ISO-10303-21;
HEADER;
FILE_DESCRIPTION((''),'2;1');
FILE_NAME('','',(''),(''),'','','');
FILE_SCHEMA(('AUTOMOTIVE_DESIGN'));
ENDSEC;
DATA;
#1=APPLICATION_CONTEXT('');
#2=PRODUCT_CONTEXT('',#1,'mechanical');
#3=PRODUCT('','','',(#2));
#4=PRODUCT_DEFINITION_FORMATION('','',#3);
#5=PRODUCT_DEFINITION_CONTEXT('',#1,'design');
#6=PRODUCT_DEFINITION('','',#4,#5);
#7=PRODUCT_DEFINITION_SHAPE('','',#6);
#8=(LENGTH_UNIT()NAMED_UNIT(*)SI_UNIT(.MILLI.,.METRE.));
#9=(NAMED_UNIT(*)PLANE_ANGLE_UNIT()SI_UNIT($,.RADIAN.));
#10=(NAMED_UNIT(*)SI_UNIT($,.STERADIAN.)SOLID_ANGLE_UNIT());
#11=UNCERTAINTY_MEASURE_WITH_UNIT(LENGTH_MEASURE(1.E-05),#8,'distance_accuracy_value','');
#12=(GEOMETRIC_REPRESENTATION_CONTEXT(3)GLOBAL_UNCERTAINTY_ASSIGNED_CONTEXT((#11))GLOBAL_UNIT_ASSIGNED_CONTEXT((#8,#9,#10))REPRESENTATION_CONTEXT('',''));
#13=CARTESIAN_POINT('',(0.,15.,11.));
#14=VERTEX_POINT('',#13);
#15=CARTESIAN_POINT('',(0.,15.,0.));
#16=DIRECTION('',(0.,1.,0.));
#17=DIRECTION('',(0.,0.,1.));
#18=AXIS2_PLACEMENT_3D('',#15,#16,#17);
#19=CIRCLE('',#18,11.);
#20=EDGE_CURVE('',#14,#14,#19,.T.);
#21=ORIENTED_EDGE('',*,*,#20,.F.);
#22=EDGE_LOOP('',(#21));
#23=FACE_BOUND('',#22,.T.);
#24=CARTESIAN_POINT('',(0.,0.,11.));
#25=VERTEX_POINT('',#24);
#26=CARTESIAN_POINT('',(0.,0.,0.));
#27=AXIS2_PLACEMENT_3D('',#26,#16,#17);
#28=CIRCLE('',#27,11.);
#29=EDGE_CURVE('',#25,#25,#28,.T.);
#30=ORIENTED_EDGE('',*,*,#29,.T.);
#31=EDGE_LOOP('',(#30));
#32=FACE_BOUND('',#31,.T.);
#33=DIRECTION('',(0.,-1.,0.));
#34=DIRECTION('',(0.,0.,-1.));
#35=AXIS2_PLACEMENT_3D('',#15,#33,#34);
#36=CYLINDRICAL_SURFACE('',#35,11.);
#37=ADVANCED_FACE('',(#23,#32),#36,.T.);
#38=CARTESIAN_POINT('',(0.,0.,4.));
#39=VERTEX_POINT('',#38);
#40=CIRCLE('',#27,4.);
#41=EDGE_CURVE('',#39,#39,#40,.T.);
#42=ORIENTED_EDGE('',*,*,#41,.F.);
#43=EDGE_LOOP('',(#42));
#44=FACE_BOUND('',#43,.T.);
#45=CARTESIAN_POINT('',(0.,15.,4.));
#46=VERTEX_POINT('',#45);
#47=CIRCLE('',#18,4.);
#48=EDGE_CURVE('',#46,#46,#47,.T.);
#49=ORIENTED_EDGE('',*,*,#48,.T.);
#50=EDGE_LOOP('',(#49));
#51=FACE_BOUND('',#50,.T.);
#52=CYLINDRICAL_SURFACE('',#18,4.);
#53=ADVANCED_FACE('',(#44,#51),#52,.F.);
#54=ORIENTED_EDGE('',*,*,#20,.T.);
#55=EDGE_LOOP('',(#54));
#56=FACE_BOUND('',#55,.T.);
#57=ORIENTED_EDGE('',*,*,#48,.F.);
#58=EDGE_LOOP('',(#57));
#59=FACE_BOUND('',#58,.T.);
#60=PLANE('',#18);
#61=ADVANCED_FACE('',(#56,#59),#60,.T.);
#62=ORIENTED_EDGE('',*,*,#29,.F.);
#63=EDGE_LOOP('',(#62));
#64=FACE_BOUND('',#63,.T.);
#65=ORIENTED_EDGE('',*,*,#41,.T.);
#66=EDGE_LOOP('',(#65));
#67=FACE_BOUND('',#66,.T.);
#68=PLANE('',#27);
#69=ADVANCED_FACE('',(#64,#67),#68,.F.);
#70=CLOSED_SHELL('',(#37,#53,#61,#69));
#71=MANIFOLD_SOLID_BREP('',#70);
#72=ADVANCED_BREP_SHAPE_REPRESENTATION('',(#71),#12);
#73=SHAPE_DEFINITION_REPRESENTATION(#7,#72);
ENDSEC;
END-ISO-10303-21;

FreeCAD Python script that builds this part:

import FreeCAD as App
import Part
import Sketcher
Q = App.Units.Quantity

doc = App.newDocument("Part")
body = doc.addObject("PartDesign::Body", "Body")

# Sketch on XZ plane
sketch1 = body.newObject("Sketcher::SketchObject", "Sketch")
sketch1.AttachmentSupport = (doc.getObject("XZ_Plane"), [""])
sketch1.MapMode = "FlatFace"
sketch1.addGeometry(Part.Circle(App.Vector(0, 0, 0), App.Vector(0, 0, 1), 11), False)
sketch1.addConstraint(Sketcher.Constraint("Coincident", 0, 3, -1, 1))
sketch1.addConstraint(Sketcher.Constraint("Diameter", 0, Q("22 mm")))
pad1 = body.newObject("PartDesign::Pad", "Pad")
pad1.Profile = sketch1
pad1.Length = 15
pad1.Reversed = True

# Sketch on XZ plane
sketch2 = body.newObject("Sketcher::SketchObject", "Sketch001")
sketch2.AttachmentSupport = (doc.getObject("XZ_Plane"), [""])
sketch2.MapMode = "FlatFace"
sketch2.AttachmentOffset = App.Placement(App.Vector(0, 0, -15), App.Rotation())
sketch2.addGeometry(Part.Circle(App.Vector(0, 0, 0), App.Vector(0, 0, 1), 4), False)
sketch2.addConstraint(Sketcher.Constraint("Coincident", 0, 3, -1, 1))
sketch2.addConstraint(Sketcher.Constraint("Diameter", 0, Q("8 mm")))
doc.recompute()
hole = body.newObject("PartDesign::Hole", "Hole")
hole.Profile = sketch2
hole.ThreadType = "None"
hole.Diameter = 8
hole.DepthType = "ThroughAll"
hole.Reversed = True

doc.recompute()
